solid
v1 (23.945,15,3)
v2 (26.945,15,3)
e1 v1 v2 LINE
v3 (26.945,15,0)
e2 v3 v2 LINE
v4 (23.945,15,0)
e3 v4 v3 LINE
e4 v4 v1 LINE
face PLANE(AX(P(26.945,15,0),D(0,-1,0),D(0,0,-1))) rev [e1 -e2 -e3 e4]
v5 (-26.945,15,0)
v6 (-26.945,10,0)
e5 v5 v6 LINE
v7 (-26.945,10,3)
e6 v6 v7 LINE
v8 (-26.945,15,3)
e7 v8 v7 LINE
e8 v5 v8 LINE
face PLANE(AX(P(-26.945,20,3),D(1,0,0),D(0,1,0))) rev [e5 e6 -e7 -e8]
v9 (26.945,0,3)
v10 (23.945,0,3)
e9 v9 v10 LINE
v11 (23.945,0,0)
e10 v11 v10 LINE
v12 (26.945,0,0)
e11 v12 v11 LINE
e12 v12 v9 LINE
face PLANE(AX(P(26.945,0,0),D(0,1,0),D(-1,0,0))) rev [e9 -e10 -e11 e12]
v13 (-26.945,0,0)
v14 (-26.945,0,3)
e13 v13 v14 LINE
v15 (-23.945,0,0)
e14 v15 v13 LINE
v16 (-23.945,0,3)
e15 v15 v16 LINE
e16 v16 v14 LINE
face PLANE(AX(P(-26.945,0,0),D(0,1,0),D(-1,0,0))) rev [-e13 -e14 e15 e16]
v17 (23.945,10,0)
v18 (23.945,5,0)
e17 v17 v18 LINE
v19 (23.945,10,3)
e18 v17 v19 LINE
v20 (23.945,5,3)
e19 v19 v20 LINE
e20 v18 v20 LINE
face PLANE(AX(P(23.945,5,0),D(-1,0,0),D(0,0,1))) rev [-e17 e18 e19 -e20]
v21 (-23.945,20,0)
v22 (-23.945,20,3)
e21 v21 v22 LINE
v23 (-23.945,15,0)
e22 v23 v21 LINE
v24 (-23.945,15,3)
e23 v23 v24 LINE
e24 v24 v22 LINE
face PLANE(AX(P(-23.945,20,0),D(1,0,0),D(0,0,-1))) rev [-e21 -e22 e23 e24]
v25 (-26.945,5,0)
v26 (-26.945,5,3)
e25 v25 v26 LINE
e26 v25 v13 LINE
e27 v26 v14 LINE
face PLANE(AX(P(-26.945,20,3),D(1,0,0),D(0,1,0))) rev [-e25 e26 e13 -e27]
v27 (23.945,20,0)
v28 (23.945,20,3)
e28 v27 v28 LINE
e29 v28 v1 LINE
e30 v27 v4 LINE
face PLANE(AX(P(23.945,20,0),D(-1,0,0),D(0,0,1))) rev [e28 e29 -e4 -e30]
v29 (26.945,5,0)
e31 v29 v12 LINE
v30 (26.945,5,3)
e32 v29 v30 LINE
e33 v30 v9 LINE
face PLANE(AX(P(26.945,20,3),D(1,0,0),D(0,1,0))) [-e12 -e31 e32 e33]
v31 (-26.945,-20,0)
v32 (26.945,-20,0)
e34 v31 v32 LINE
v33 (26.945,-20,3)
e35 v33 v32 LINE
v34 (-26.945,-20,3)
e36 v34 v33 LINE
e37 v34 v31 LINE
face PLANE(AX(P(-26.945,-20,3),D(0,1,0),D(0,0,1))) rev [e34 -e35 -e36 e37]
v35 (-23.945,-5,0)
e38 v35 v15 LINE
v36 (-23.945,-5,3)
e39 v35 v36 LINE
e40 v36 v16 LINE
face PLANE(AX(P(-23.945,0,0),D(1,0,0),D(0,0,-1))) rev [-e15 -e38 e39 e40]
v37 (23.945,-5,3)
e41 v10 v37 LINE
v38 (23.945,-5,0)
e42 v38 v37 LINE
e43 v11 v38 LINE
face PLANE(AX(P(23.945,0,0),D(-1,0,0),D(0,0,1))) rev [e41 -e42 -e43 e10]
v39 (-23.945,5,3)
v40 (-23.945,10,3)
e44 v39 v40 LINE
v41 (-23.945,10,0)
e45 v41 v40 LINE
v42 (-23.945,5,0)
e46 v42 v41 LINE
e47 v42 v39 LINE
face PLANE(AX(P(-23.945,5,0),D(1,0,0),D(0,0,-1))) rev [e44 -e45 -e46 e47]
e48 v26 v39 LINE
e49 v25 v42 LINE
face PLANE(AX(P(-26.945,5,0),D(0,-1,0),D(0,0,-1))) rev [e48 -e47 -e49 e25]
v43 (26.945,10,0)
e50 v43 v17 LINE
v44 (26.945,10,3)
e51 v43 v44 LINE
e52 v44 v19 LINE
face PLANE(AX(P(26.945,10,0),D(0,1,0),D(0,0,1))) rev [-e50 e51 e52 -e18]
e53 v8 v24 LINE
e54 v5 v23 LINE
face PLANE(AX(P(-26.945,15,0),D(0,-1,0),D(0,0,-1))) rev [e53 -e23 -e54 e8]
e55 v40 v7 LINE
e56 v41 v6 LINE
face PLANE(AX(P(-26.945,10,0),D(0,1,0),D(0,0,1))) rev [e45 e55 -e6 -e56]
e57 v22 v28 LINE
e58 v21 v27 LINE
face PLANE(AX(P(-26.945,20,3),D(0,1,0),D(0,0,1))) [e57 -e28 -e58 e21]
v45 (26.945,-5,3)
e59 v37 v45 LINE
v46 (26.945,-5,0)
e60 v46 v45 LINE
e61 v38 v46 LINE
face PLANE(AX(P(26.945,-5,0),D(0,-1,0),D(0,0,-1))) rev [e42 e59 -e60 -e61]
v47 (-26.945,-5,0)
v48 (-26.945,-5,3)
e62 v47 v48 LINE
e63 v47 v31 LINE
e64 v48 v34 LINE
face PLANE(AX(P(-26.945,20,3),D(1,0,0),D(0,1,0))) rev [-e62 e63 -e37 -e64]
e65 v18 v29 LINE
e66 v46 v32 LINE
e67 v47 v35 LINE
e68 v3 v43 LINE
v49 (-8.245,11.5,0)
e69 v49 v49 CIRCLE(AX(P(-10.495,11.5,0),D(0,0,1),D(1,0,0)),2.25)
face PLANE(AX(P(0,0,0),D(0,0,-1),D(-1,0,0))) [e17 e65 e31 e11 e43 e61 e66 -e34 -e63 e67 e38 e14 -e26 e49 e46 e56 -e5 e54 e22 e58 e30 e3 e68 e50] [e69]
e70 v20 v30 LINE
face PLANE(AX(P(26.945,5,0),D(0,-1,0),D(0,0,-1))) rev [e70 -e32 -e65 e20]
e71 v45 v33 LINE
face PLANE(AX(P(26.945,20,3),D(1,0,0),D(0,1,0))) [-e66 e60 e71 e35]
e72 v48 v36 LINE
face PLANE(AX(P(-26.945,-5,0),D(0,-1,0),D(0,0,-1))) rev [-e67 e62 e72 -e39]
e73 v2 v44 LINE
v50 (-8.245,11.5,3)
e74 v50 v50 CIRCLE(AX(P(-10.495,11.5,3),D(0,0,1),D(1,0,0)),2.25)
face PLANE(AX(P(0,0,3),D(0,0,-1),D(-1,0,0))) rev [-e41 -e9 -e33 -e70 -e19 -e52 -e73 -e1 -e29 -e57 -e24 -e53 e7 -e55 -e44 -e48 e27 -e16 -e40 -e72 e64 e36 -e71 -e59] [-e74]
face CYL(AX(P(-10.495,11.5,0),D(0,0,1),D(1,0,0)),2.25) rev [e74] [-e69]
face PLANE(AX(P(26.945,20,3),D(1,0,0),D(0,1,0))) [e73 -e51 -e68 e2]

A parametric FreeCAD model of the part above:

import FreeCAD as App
import Part
import Sketcher
Q = App.Units.Quantity


def add_polygon(sketch, points):
    """Adds a closed chain of lines whose ends are joined by coincident constraints."""
    first, n = sketch.GeometryCount, len(points)
    for a, b in zip(points, points[1:] + points[:1]):
        sketch.addGeometry(Part.LineSegment(App.Vector(*a, 0), App.Vector(*b, 0)), False)
    for i in range(n):
        sketch.addConstraint(Sketcher.Constraint("Coincident", first + i, 2, first + (i + 1) % n, 1))

doc = App.newDocument("Part")
body = doc.addObject("PartDesign::Body", "Body")

# Sketch on XY plane
sketch1 = body.newObject("Sketcher::SketchObject", "Sketch")
sketch1.AttachmentSupport = (doc.getObject("XY_Plane"), [""])
sketch1.MapMode = "FlatFace"
add_polygon(sketch1, [(-27, 20), (-27, -20), (27, -20), (27, 20)])  # lines 0-3
sketch1.addConstraint([
    Sketcher.Constraint("Vertical", 0),
    Sketcher.Constraint("Horizontal", 1),
    Sketcher.Constraint("Vertical", 2),
    Sketcher.Constraint("Horizontal", 3),
    Sketcher.Constraint("Symmetric", 0, 2, 2, 2, -1, 1),
    Sketcher.Constraint("DistanceY", 0, 2, 0, 1, Q("40 mm")),
    Sketcher.Constraint("DistanceX", 1, 1, 1, 2, Q("53.89 mm")),
])
pad1 = body.newObject("PartDesign::Pad", "Pad")
pad1.Profile = sketch1
pad1.Length = 3

# Sketch on XY plane
sketch2 = body.newObject("Sketcher::SketchObject", "Sketch001")
sketch2.AttachmentSupport = (doc.getObject("XY_Plane"), [""])
sketch2.MapMode = "FlatFace"
sketch2.AttachmentOffset = App.Placement(App.Vector(0, 0, 3), App.Rotation())
sketch2.addGeometry(Part.Circle(App.Vector(-10.5, 11.5, 0), App.Vector(0, 0, 1), 2.2), False)  # 0
add_polygon(sketch2, [(-26.9, 20), (-26.9, 15), (-23.9, 15), (-23.9, 20)])  # lines 1-4
add_polygon(sketch2, [(-26.9, 10), (-26.9, 5), (-23.9, 5), (-23.9, 10)])  # lines 5-8
add_polygon(sketch2, [(23.9, 20), (23.9, 15), (26.9, 15), (26.9, 20)])  # lines 9-12
add_polygon(sketch2, [(23.9, 10), (23.9, 5), (26.9, 5), (26.9, 10)])  # lines 13-16
add_polygon(sketch2, [(23.9, 0), (23.9, -5), (26.9, -5), (26.9, 0)])  # lines 17-20
add_polygon(sketch2, [(-26.9, 0), (-26.9, -5), (-23.9, -5), (-23.9, 0)])  # lines 21-24
sketch2.addConstraint([
    Sketcher.Constraint("Vertical", 1),
    Sketcher.Constraint("Horizontal", 2),
    Sketcher.Constraint("Vertical", 3),
    Sketcher.Constraint("Horizontal", 4),
    Sketcher.Constraint("Vertical", 5),
    Sketcher.Constraint("Horizontal", 6),
    Sketcher.Constraint("Vertical", 7),
    Sketcher.Constraint("Horizontal", 8),
    Sketcher.Constraint("Vertical", 9),
    Sketcher.Constraint("Horizontal", 10),
    Sketcher.Constraint("Vertical", 11),
    Sketcher.Constraint("Horizontal", 12),
    Sketcher.Constraint("Vertical", 13),
    Sketcher.Constraint("Horizontal", 14),
    Sketcher.Constraint("Vertical", 15),
    Sketcher.Constraint("Horizontal", 16),
    Sketcher.Constraint("Vertical", 17),
    Sketcher.Constraint("Horizontal", 18),
    Sketcher.Constraint("Vertical", 19),
    Sketcher.Constraint("Horizontal", 20),
    Sketcher.Constraint("Vertical", 21),
    Sketcher.Constraint("Horizontal", 22),
    Sketcher.Constraint("Vertical", 23),
    Sketcher.Constraint("Horizontal", 24),
    Sketcher.Constraint("Symmetric", 6, 2, 17, 2, -1, 1),
    Sketcher.Constraint("Symmetric", 14, 2, 21, 2, -1, 1),
    Sketcher.Constraint("Symmetric", 20, 2, 23, 2, -1, 1),
    Sketcher.Constraint("Symmetric", 2, 2, 9, 2, -2),
    Sketcher.Constraint("Symmetric", 4, 2, 11, 2, -2),
    Sketcher.Constraint("Symmetric", 6, 2, 13, 2, -2),
    Sketcher.Constraint("Symmetric", 8, 2, 15, 2, -2),
    Sketcher.Constraint("Symmetric", 19, 2, 24, 2, -2),
    Sketcher.Constraint("Vertical", 4, 2, 5, 2),
    Sketcher.Constraint("Vertical", 3, 2, 6, 2),
    Sketcher.Constraint("Equal", 3, 5),
    Sketcher.Constraint("Equal", 15, 17),
    Sketcher.Constraint("Diameter", 0, Q("4.5 mm")),
    Sketcher.Constraint("DistanceX", 2, 1, 2, 2, Q("3 mm")),
    Sketcher.Constraint("DistanceY", 1, 2, 1, 1, Q("5 mm")),
    Sketcher.Constraint("DistanceY", -1, 1, 1, 2, Q("15 mm")),
    Sketcher.Constraint("DistanceY", -1, 1, 0, 3, Q("11.5 mm")),
    Sketcher.Constraint("DistanceX", 1, 2, 0, 3, Q("16.45 mm")),
    Sketcher.Constraint("DistanceX", 0, 3, 9, 2, Q("34.44 mm")),
])
pocket1 = body.newObject("PartDesign::Pocket", "Pocket")
pocket1.Profile = sketch2
pocket1.Length = 3

doc.recompute()
